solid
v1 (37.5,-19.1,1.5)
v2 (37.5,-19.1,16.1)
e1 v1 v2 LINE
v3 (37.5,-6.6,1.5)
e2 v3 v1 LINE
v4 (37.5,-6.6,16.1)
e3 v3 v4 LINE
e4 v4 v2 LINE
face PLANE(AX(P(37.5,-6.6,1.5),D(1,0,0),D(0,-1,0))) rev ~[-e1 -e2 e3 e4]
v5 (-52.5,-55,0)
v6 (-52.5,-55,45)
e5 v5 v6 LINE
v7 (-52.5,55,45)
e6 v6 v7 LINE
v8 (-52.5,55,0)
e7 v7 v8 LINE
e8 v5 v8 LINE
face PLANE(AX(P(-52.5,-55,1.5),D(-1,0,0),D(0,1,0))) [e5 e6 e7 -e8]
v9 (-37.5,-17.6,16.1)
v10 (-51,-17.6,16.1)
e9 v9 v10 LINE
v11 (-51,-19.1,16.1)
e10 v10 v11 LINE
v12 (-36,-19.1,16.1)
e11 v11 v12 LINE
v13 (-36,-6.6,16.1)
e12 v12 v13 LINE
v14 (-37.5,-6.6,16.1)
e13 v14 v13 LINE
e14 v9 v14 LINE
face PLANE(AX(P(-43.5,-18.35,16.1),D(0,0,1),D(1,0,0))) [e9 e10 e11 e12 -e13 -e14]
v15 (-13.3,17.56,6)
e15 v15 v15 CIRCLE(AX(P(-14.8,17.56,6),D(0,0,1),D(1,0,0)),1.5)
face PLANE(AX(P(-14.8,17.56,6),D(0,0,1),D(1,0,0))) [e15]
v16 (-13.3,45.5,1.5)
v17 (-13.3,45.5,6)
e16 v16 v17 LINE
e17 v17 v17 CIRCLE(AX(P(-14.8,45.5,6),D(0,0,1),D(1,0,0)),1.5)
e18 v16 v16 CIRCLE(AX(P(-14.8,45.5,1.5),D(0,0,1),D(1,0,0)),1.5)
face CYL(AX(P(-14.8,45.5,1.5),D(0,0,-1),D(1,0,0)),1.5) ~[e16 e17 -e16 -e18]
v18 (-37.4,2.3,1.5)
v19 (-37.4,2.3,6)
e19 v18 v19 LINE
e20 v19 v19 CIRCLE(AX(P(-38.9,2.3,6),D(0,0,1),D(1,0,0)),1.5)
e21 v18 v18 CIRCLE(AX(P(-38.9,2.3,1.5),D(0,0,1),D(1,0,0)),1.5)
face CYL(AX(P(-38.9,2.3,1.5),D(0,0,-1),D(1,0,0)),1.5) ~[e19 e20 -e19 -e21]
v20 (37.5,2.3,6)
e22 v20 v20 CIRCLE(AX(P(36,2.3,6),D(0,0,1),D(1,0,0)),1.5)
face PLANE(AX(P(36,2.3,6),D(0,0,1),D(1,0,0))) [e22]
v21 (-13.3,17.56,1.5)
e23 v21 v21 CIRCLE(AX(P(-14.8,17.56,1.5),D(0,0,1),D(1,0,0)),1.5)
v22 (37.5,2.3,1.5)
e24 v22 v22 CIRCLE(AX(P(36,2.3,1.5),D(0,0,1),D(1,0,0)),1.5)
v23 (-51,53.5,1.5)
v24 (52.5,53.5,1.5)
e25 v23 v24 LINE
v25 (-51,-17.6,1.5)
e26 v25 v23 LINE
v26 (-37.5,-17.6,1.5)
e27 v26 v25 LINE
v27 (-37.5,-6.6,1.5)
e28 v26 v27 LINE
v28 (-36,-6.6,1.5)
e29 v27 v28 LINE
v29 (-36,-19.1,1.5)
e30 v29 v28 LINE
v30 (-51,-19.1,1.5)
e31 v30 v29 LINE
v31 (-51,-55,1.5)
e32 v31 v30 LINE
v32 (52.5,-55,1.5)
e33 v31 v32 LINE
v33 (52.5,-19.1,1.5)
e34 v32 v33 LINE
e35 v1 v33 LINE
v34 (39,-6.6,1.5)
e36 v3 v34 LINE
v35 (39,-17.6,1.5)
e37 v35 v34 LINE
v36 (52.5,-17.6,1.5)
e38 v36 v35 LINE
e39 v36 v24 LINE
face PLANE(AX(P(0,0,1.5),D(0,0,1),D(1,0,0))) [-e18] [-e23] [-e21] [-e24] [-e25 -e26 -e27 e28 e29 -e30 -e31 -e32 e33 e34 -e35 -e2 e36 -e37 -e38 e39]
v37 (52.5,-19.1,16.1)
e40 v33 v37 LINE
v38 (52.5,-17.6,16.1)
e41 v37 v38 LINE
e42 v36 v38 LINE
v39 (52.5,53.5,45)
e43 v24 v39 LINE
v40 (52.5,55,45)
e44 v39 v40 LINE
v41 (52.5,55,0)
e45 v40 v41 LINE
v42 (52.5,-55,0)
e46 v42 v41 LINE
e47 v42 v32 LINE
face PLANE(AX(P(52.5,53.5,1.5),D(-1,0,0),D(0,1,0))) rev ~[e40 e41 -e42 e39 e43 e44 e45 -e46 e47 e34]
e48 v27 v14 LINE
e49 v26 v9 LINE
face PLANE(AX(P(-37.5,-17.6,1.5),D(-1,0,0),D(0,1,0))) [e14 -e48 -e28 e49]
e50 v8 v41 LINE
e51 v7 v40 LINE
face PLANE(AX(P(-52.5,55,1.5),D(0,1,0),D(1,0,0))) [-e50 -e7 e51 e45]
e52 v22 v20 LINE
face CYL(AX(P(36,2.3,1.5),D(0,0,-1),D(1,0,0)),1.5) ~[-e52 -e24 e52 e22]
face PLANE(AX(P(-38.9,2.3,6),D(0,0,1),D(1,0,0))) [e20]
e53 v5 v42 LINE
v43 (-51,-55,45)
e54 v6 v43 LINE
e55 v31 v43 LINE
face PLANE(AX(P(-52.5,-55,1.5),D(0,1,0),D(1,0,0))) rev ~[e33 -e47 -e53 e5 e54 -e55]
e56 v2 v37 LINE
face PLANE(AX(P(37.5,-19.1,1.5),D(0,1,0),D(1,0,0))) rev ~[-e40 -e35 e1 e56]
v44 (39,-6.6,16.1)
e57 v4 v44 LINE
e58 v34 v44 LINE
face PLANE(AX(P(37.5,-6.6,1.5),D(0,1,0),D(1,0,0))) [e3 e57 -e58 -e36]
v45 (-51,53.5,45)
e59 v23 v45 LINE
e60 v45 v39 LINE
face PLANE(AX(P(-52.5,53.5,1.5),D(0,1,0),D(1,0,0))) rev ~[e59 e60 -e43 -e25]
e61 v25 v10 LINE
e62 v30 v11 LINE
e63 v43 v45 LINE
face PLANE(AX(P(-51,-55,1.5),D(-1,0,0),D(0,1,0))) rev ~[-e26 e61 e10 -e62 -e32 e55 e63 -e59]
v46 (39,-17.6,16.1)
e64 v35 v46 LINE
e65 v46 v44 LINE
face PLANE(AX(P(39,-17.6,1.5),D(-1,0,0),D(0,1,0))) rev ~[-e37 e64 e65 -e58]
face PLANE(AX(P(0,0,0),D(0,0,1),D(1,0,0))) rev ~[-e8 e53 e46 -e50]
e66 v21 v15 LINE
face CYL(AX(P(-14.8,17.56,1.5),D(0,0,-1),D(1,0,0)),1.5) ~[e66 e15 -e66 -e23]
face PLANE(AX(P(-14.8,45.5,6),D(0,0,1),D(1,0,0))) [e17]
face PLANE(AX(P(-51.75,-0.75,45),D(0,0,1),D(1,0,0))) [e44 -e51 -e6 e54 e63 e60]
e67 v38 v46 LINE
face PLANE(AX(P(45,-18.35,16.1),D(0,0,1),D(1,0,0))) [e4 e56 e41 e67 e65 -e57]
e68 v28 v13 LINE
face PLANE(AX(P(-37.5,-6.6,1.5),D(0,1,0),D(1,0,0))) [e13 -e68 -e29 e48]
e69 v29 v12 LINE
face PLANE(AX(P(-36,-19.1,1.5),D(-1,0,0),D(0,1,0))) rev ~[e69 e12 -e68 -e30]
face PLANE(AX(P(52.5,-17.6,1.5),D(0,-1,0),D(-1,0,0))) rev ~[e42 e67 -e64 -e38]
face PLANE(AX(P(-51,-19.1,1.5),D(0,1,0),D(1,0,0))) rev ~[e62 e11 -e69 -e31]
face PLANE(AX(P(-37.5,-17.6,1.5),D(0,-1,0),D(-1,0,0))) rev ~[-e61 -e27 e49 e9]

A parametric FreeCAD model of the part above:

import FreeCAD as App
import Part
import Sketcher
from FreeCAD import Vector
Q = App.Units.Quantity

doc = App.newDocument("Part")
body = doc.addObject("PartDesign::Body", "Body")

# Sketch on XY plane
sketch1 = body.newObject("Sketcher::SketchObject", "Sketch")
sketch1.AttachmentSupport = (doc.getObject("XY_Plane"), [""])
sketch1.MapMode = "FlatFace"
sketch1.addGeometry([
    Part.LineSegment(Vector(-52.5, 55, 0), Vector(-52.5, -55, 0)),
    Part.LineSegment(Vector(-52.5, -55, 0), Vector(52.5, -55, 0)),
    Part.LineSegment(Vector(52.5, -55, 0), Vector(52.5, 55, 0)),
    Part.LineSegment(Vector(52.5, 55, 0), Vector(-52.5, 55, 0)),
], False)
sketch1.addConstraint([
    Sketcher.Constraint("Coincident", 0, 2, 1, 1),
    Sketcher.Constraint("Coincident", 1, 2, 2, 1),
    Sketcher.Constraint("Coincident", 2, 2, 3, 1),
    Sketcher.Constraint("Coincident", 3, 2, 0, 1),
    Sketcher.Constraint("Vertical", 0),
    Sketcher.Constraint("Horizontal", 1),
    Sketcher.Constraint("Vertical", 2),
    Sketcher.Constraint("Horizontal", 3),
    Sketcher.Constraint("Symmetric", 0, 2, 2, 2, -1, 1),
    Sketcher.Constraint("DistanceX", 1, 1, 1, 2, Q("105 mm")),
    Sketcher.Constraint("DistanceY", 0, 2, 0, 1, Q("110 mm")),
])
pad1 = body.newObject("PartDesign::Pad", "Pad")
pad1.Profile = sketch1
pad1.Length = 1.5

# Sketch on XY plane
sketch2 = body.newObject("Sketcher::SketchObject", "Sketch001")
sketch2.AttachmentSupport = (doc.getObject("XY_Plane"), [""])
sketch2.MapMode = "FlatFace"
sketch2.AttachmentOffset = App.Placement(Vector(0, 0, 1.5), App.Rotation())
sketch2.addGeometry([
    Part.LineSegment(Vector(-52.5, 55, 0), Vector(-52.5, 53.5, 0)),
    Part.LineSegment(Vector(-52.5, 53.5, 0), Vector(52.5, 53.5, 0)),
    Part.LineSegment(Vector(52.5, 53.5, 0), Vector(52.5, 55, 0)),
    Part.LineSegment(Vector(52.5, 55, 0), Vector(-52.5, 55, 0)),
], False)
sketch2.addConstraint([
    Sketcher.Constraint("Coincident", 0, 2, 1, 1),
    Sketcher.Constraint("Coincident", 1, 2, 2, 1),
    Sketcher.Constraint("Coincident", 2, 2, 3, 1),
    Sketcher.Constraint("Coincident", 3, 2, 0, 1),
    Sketcher.Constraint("Vertical", 0),
    Sketcher.Constraint("Horizontal", 1),
    Sketcher.Constraint("Vertical", 2),
    Sketcher.Constraint("Horizontal", 3),
    Sketcher.Constraint("DistanceX", 1, 1, 1, 2, Q("105 mm")),
    Sketcher.Constraint("DistanceY", 0, 2, 0, 1, Q("1.5 mm")),
    Sketcher.Constraint("DistanceY", -1, 1, 2, 2, Q("55 mm")),
    Sketcher.Constraint("DistanceX", 0, 2, -1, 1, Q("52.5 mm")),
])
pad2 = body.newObject("PartDesign::Pad", "Pad001")
pad2.Profile = sketch2
pad2.Length = 43.5

# Sketch on XY plane
sketch3 = body.newObject("Sketcher::SketchObject", "Sketch002")
sketch3.AttachmentSupport = (doc.getObject("XY_Plane"), [""])
sketch3.MapMode = "FlatFace"
sketch3.AttachmentOffset = App.Placement(Vector(0, 0, 1.5), App.Rotation())
sketch3.addGeometry([
    Part.LineSegment(Vector(-52.5, 53.5, 0), Vector(-52.5, -55, 0)),
    Part.LineSegment(Vector(-52.5, -55, 0), Vector(-51, -55, 0)),
    Part.LineSegment(Vector(-51, -55, 0), Vector(-51, 53.5, 0)),
    Part.LineSegment(Vector(-51, 53.5, 0), Vector(-52.5, 53.5, 0)),
], False)
sketch3.addConstraint([
    Sketcher.Constraint("Coincident", 0, 2, 1, 1),
    Sketcher.Constraint("Coincident", 1, 2, 2, 1),
    Sketcher.Constraint("Coincident", 2, 2, 3, 1),
    Sketcher.Constraint("Coincident", 3, 2, 0, 1),
    Sketcher.Constraint("Vertical", 0),
    Sketcher.Constraint("Horizontal", 1),
    Sketcher.Constraint("Vertical", 2),
    Sketcher.Constraint("Horizontal", 3),
    Sketcher.Constraint("DistanceX", 1, 1, 1, 2, Q("1.5 mm")),
    Sketcher.Constraint("DistanceY", 0, 2, 0, 1, Q("108.5 mm")),
    Sketcher.Constraint("DistanceY", 0, 2, -1, 1, Q("55 mm")),
    Sketcher.Constraint("DistanceX", 1, 2, -1, 1, Q("51 mm")),
])
pad3 = body.newObject("PartDesign::Pad", "Pad002")
pad3.Profile = sketch3
pad3.Length = 43.5

# Sketch on XY plane
sketch4 = body.newObject("Sketcher::SketchObject", "Sketch003")
sketch4.AttachmentSupport = (doc.getObject("XY_Plane"), [""])
sketch4.MapMode = "FlatFace"
sketch4.AttachmentOffset = App.Placement(Vector(0, 0, 1.5), App.Rotation())
sketch4.addGeometry([
    Part.Circle(Vector(-14.8, 45.5, 0), Vector(0, 0, 1), 1.5),
    Part.Circle(Vector(-14.8, 17.56, 0), Vector(0, 0, 1), 1.5),
    Part.Circle(Vector(-38.9, 2.3, 0), Vector(0, 0, 1), 1.5),
    Part.Circle(Vector(36, 2.3, 0), Vector(0, 0, 1), 1.5),
], False)
sketch4.addConstraint([
    Sketcher.Constraint("Equal", 0, 1),
    Sketcher.Constraint("Equal", 1, 2),
    Sketcher.Constraint("Equal", 2, 3),
    Sketcher.Constraint("Horizontal", 2, 3, 3, 3),
    Sketcher.Constraint("Vertical", 0, 3, 1, 3),
    Sketcher.Constraint("Diameter", 0, Q("3 mm")),
    Sketcher.Constraint("DistanceX", -1, 1, 3, 3, Q("36 mm")),
    Sketcher.Constraint("DistanceX", 0, 3, -1, 1, Q("14.8 mm")),
    Sketcher.Constraint("DistanceY", -1, 1, 0, 3, Q("45.5 mm")),
    Sketcher.Constraint("DistanceX", 2, 3, -1, 1, Q("38.9 mm")),
    Sketcher.Constraint("DistanceY", -1, 1, 2, 3, Q("2.3 mm")),
    Sketcher.Constraint("DistanceY", -1, 1, 1, 3, Q("17.56 mm")),
])
pad4 = body.newObject("PartDesign::Pad", "Pad003")
pad4.Profile = sketch4
pad4.Length = 4.5

# Sketch on XY plane
sketch5 = body.newObject("Sketcher::SketchObject", "Sketch004")
sketch5.AttachmentSupport = (doc.getObject("XY_Plane"), [""])
sketch5.MapMode = "FlatFace"
sketch5.AttachmentOffset = App.Placement(Vector(0, 0, 1.5), App.Rotation())
sketch5.addGeometry([
    Part.LineSegment(Vector(-51, -17.6, 0), Vector(-51, -19.1, 0)),  # 0
    Part.LineSegment(Vector(-51, -19.1, 0), Vector(-36, -19.1, 0)),  # 1
    Part.LineSegment(Vector(-36, -19.1, 0), Vector(-36, -6.6, 0)),  # 2
    Part.LineSegment(Vector(-36, -6.6, 0), Vector(-37.5, -6.6, 0)),  # 3
    Part.LineSegment(Vector(-37.5, -6.6, 0), Vector(-37.5, -17.6, 0)),  # 4
    Part.LineSegment(Vector(-37.5, -17.6, 0), Vector(-51, -17.6, 0)),  # 5
    Part.LineSegment(Vector(37.5, -19.1, 0), Vector(52.5, -19.1, 0)),  # 6
    Part.LineSegment(Vector(52.5, -19.1, 0), Vector(52.5, -17.6, 0)),  # 7
    Part.LineSegment(Vector(52.5, -17.6, 0), Vector(39, -17.6, 0)),  # 8
    Part.LineSegment(Vector(39, -17.6, 0), Vector(39, -6.6, 0)),  # 9
    Part.LineSegment(Vector(39, -6.6, 0), Vector(37.5, -6.6, 0)),  # 10
    Part.LineSegment(Vector(37.5, -6.6, 0), Vector(37.5, -19.1, 0)),  # 11
], False)
sketch5.addConstraint([
    Sketcher.Constraint("Coincident", 0, 2, 1, 1),
    Sketcher.Constraint("Coincident", 1, 2, 2, 1),
    Sketcher.Constraint("Coincident", 2, 2, 3, 1),
    Sketcher.Constraint("Coincident", 3, 2, 4, 1),
    Sketcher.Constraint("Coincident", 4, 2, 5, 1),
    Sketcher.Constraint("Coincident", 5, 2, 0, 1),
    Sketcher.Constraint("Coincident", 6, 2, 7, 1),
    Sketcher.Constraint("Coincident", 7, 2, 8, 1),
    Sketcher.Constraint("Coincident", 8, 2, 9, 1),
    Sketcher.Constraint("Coincident", 9, 2, 10, 1),
    Sketcher.Constraint("Coincident", 10, 2, 11, 1),
    Sketcher.Constraint("Coincident", 11, 2, 6, 1),
    Sketcher.Constraint("Vertical", 0),
    Sketcher.Constraint("Horizontal", 1),
    Sketcher.Constraint("Vertical", 2),
    Sketcher.Constraint("Horizontal", 3),
    Sketcher.Constraint("Vertical", 4),
    Sketcher.Constraint("Horizontal", 5),
    Sketcher.Constraint("Horizontal", 6),
    Sketcher.Constraint("Vertical", 7),
    Sketcher.Constraint("Horizontal", 8),
    Sketcher.Constraint("Vertical", 9),
    Sketcher.Constraint("Horizontal", 10),
    Sketcher.Constraint("Vertical", 11),
    Sketcher.Constraint("Symmetric", 3, 2, 10, 2, -2),
    Sketcher.Constraint("Horizontal", 1, 2, 6, 2),
    Sketcher.Constraint("Horizontal", 5, 2, 7, 2),
    Sketcher.Constraint("Equal", 1, 6),
    Sketcher.Constraint("Equal", 5, 8),
    Sketcher.Constraint("Equal", 10, 0),
    Sketcher.Constraint("DistanceX", 1, 1, 1, 2, Q("15 mm")),
    Sketcher.Constraint("DistanceY", 4, 2, 4, 1, Q("11 mm")),
    Sketcher.Constraint("DistanceX", 3, 2, 3, 1, Q("1.5 mm")),
    Sketcher.Constraint("DistanceX", 0, 2, -1, 1, Q("51 mm")),
    Sketcher.Constraint("DistanceY", 0, 2, -1, 1, Q("19.1 mm")),
])
pad5 = body.newObject("PartDesign::Pad", "Pad004")
pad5.Profile = sketch5
pad5.Length = 14.6

doc.recompute()
